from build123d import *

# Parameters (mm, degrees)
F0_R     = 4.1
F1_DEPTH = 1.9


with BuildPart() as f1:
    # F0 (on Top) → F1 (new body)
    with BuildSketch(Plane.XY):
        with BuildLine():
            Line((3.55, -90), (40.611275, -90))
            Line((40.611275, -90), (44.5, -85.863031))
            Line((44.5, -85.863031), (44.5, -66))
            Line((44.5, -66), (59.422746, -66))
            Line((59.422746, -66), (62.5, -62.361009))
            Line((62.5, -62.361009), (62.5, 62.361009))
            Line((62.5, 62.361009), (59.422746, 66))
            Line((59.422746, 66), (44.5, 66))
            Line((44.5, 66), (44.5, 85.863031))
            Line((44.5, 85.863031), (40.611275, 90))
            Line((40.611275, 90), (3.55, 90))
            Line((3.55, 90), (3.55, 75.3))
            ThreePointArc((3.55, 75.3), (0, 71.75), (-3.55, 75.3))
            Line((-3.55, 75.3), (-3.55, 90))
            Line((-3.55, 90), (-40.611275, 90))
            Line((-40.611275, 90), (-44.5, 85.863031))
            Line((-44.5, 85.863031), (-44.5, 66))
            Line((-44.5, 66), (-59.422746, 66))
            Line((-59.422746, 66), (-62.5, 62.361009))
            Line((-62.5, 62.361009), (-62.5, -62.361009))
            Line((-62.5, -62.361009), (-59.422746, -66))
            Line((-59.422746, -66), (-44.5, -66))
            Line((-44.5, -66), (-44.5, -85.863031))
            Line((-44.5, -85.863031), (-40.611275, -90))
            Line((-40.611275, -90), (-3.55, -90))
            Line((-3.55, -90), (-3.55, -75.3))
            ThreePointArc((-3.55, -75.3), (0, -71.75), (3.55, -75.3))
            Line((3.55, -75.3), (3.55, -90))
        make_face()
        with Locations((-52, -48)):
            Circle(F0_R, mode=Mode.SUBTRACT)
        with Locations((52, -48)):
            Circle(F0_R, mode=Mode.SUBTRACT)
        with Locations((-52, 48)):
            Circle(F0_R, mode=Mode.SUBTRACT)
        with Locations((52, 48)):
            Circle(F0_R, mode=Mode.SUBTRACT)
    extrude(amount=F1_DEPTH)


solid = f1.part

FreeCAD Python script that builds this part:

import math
import FreeCAD as App
import Part
import Sketcher
Q = App.Units.Quantity

doc = App.newDocument("Part")
body = doc.addObject("PartDesign::Body", "Body")

# Sketch on XY plane
sketch1 = body.newObject("Sketcher::SketchObject", "Sketch")
sketch1.AttachmentSupport = (doc.getObject("XY_Plane"), [""])
sketch1.MapMode = "FlatFace"
sketch1.addGeometry(Part.LineSegment(App.Vector(3.55, -90, 0), App.Vector(40.611275, -90, 0)), False)
sketch1.addGeometry(Part.LineSegment(App.Vector(40.611275, -90, 0), App.Vector(44.5, -85.863031, 0)), False)
sketch1.addGeometry(Part.LineSegment(App.Vector(44.5, -85.863031, 0), App.Vector(44.5, -66, 0)), False)
sketch1.addGeometry(Part.LineSegment(App.Vector(44.5, -66, 0), App.Vector(59.422746, -66, 0)), False)
sketch1.addGeometry(Part.LineSegment(App.Vector(59.422746, -66, 0), App.Vector(62.5, -62.361009, 0)), False)
sketch1.addGeometry(Part.LineSegment(App.Vector(62.5, -62.361009, 0), App.Vector(62.5, 62.361009, 0)), False)
sketch1.addGeometry(Part.LineSegment(App.Vector(62.5, 62.361009, 0), App.Vector(59.422746, 66, 0)), False)
sketch1.addGeometry(Part.LineSegment(App.Vector(59.422746, 66, 0), App.Vector(44.5, 66, 0)), False)
sketch1.addGeometry(Part.LineSegment(App.Vector(44.5, 66, 0), App.Vector(44.5, 85.863031, 0)), False)
sketch1.addGeometry(Part.LineSegment(App.Vector(44.5, 85.863031, 0), App.Vector(40.611275, 90, 0)), False)
sketch1.addGeometry(Part.LineSegment(App.Vector(40.611275, 90, 0), App.Vector(3.55, 90, 0)), False)
sketch1.addGeometry(Part.LineSegment(App.Vector(3.55, 90, 0), App.Vector(3.55, 75.3, 0)), False)
sketch1.addGeometry(Part.ArcOfCircle(Part.Circle(App.Vector(0, 75.3, 0), App.Vector(0, 0, 1), 3.55), math.radians(180), math.radians(360)), False)
sketch1.addGeometry(Part.LineSegment(App.Vector(-3.55, 75.3, 0), App.Vector(-3.55, 90, 0)), False)
sketch1.addGeometry(Part.LineSegment(App.Vector(-3.55, 90, 0), App.Vector(-40.611275, 90, 0)), False)
sketch1.addGeometry(Part.LineSegment(App.Vector(-40.611275, 90, 0), App.Vector(-44.5, 85.863031, 0)), False)
sketch1.addGeometry(Part.LineSegment(App.Vector(-44.5, 85.863031, 0), App.Vector(-44.5, 66, 0)), False)
sketch1.addGeometry(Part.LineSegment(App.Vector(-44.5, 66, 0), App.Vector(-59.422746, 66, 0)), False)
sketch1.addGeometry(Part.LineSegment(App.Vector(-59.422746, 66, 0), App.Vector(-62.5, 62.361009, 0)), False)
sketch1.addGeometry(Part.LineSegment(App.Vector(-62.5, 62.361009, 0), App.Vector(-62.5, -62.361009, 0)), False)
sketch1.addGeometry(Part.LineSegment(App.Vector(-62.5, -62.361009, 0), App.Vector(-59.422746, -66, 0)), False)
sketch1.addGeometry(Part.LineSegment(App.Vector(-59.422746, -66, 0), App.Vector(-44.5, -66, 0)), False)
sketch1.addGeometry(Part.LineSegment(App.Vector(-44.5, -66, 0), App.Vector(-44.5, -85.863031, 0)), False)
sketch1.addGeometry(Part.LineSegment(App.Vector(-44.5, -85.863031, 0), App.Vector(-40.611275, -90, 0)), False)
sketch1.addGeometry(Part.LineSegment(App.Vector(-40.611275, -90, 0), App.Vector(-3.55, -90, 0)), False)
sketch1.addGeometry(Part.LineSegment(App.Vector(-3.55, -90, 0), App.Vector(-3.55, -75.3, 0)), False)
sketch1.addGeometry(Part.ArcOfCircle(Part.Circle(App.Vector(0, -75.3, 0), App.Vector(0, 0, 1), 3.55), math.radians(0), math.radians(180)), False)
sketch1.addGeometry(Part.LineSegment(App.Vector(3.55, -75.3, 0), App.Vector(3.55, -90, 0)), False)
sketch1.addGeometry(Part.Circle(App.Vector(-52, -48, 0), App.Vector(0, 0, 1), 4.1), False)
sketch1.addGeometry(Part.Circle(App.Vector(52, -48, 0), App.Vector(0, 0, 1), 4.1), False)
sketch1.addGeometry(Part.Circle(App.Vector(-52, 48, 0), App.Vector(0, 0, 1), 4.1), False)
sketch1.addGeometry(Part.Circle(App.Vector(52, 48, 0), App.Vector(0, 0, 1), 4.1), False)
sketch1.addConstraint(Sketcher.Constraint("Coincident", 0, 2, 1, 1))
sketch1.addConstraint(Sketcher.Constraint("Coincident", 1, 2, 2, 1))
sketch1.addConstraint(Sketcher.Constraint("Coincident", 2, 2, 3, 1))
sketch1.addConstraint(Sketcher.Constraint("Coincident", 3, 2, 4, 1))
sketch1.addConstraint(Sketcher.Constraint("Coincident", 4, 2, 5, 1))
sketch1.addConstraint(Sketcher.Constraint("Coincident", 5, 2, 6, 1))
sketch1.addConstraint(Sketcher.Constraint("Coincident", 6, 2, 7, 1))
sketch1.addConstraint(Sketcher.Constraint("Coincident", 7, 2, 8, 1))
sketch1.addConstraint(Sketcher.Constraint("Coincident", 8, 2, 9, 1))
sketch1.addConstraint(Sketcher.Constraint("Coincident", 9, 2, 10, 1))
sketch1.addConstraint(Sketcher.Constraint("Coincident", 10, 2, 11, 1))
sketch1.addConstraint(Sketcher.Constraint("Tangent", 11, 2, 12, 2))
sketch1.addConstraint(Sketcher.Constraint("Tangent", 12, 1, 13, 1))
sketch1.addConstraint(Sketcher.Constraint("Coincident", 13, 2, 14, 1))
sketch1.addConstraint(Sketcher.Constraint("Coincident", 14, 2, 15, 1))
sketch1.addConstraint(Sketcher.Constraint("Coincident", 15, 2, 16, 1))
sketch1.addConstraint(Sketcher.Constraint("Coincident", 16, 2, 17, 1))
sketch1.addConstraint(Sketcher.Constraint("Coincident", 17, 2, 18, 1))
sketch1.addConstraint(Sketcher.Constraint("Coincident", 18, 2, 19, 1))
sketch1.addConstraint(Sketcher.Constraint("Coincident", 19, 2, 20, 1))
sketch1.addConstraint(Sketcher.Constraint("Coincident", 20, 2, 21, 1))
sketch1.addConstraint(Sketcher.Constraint("Coincident", 21, 2, 22, 1))
sketch1.addConstraint(Sketcher.Constraint("Coincident", 22, 2, 23, 1))
sketch1.addConstraint(Sketcher.Constraint("Coincident", 23, 2, 24, 1))
sketch1.addConstraint(Sketcher.Constraint("Coincident", 24, 2, 25, 1))
sketch1.addConstraint(Sketcher.Constraint("Tangent", 25, 2, 26, 2))
sketch1.addConstraint(Sketcher.Constraint("Tangent", 26, 1, 27, 1))
sketch1.addConstraint(Sketcher.Constraint("Coincident", 27, 2, 0, 1))
sketch1.addConstraint(Sketcher.Constraint("Horizontal", 0))
sketch1.addConstraint(Sketcher.Constraint("Vertical", 2))
sketch1.addConstraint(Sketcher.Constraint("Horizontal", 3))
sketch1.addConstraint(Sketcher.Constraint("Vertical", 5))
sketch1.addConstraint(Sketcher.Constraint("Horizontal", 7))
sketch1.addConstraint(Sketcher.Constraint("Vertical", 8))
sketch1.addConstraint(Sketcher.Constraint("Horizontal", 10))
sketch1.addConstraint(Sketcher.Constraint("Vertical", 11))
sketch1.addConstraint(Sketcher.Constraint("Vertical", 13))
sketch1.addConstraint(Sketcher.Constraint("Horizontal", 14))
sketch1.addConstraint(Sketcher.Constraint("Vertical", 16))
sketch1.addConstraint(Sketcher.Constraint("Horizontal", 17))
sketch1.addConstraint(Sketcher.Constraint("Vertical", 19))
sketch1.addConstraint(Sketcher.Constraint("Horizontal", 21))
sketch1.addConstraint(Sketcher.Constraint("Vertical", 22))
sketch1.addConstraint(Sketcher.Constraint("Horizontal", 24))
sketch1.addConstraint(Sketcher.Constraint("Vertical", 25))
sketch1.addConstraint(Sketcher.Constraint("Vertical", 27))
sketch1.addConstraint(Sketcher.Constraint("Equal", 12, 26))
sketch1.addConstraint(Sketcher.Constraint("Equal", 28, 29))
sketch1.addConstraint(Sketcher.Constraint("Equal", 29, 30))
sketch1.addConstraint(Sketcher.Constraint("Equal", 30, 31))
sketch1.addConstraint(Sketcher.Constraint("Symmetric", 12, 3, 26, 3, -1, 1))
sketch1.addConstraint(Sketcher.Constraint("Symmetric", 29, 3, 30, 3, -1, 1))
sketch1.addConstraint(Sketcher.Constraint("Symmetric", 28, 3, 31, 3, -1, 1))
sketch1.addConstraint(Sketcher.Constraint("Symmetric", 0, 2, 14, 2, -1, 1))
sketch1.addConstraint(Sketcher.Constraint("Symmetric", 1, 2, 15, 2, -1, 1))
sketch1.addConstraint(Sketcher.Constraint("Symmetric", 3, 2, 17, 2, -1, 1))
sketch1.addConstraint(Sketcher.Constraint("Symmetric", 4, 2, 18, 2, -1, 1))
sketch1.addConstraint(Sketcher.Constraint("Symmetric", 6, 2, 20, 2, -1, 1))
sketch1.addConstraint(Sketcher.Constraint("Symmetric", 8, 2, 22, 2, -1, 1))
sketch1.addConstraint(Sketcher.Constraint("Symmetric", 9, 2, 23, 2, -1, 1))
sketch1.addConstraint(Sketcher.Constraint("Symmetric", 28, 3, 29, 3, -2))
sketch1.addConstraint(Sketcher.Constraint("Symmetric", 10, 2, 13, 2, -2))
sketch1.addConstraint(Sketcher.Constraint("Symmetric", 8, 2, 15, 2, -2))
sketch1.addConstraint(Sketcher.Constraint("Symmetric", 6, 2, 17, 2, -2))
sketch1.addConstraint(Sketcher.Constraint("Parallel", 6, 20))
sketch1.addConstraint(Sketcher.Constraint("Horizontal", 5, 2, 18, 2))
sketch1.addConstraint(Sketcher.Constraint("Vertical", 0, 2, 9, 2))
sketch1.addConstraint(Sketcher.Constraint("Diameter", 28, Q("8.2 mm")))
sketch1.addConstraint(Sketcher.Constraint("Radius", 12, Q("3.55 mm")))
sketch1.addConstraint(Sketcher.Constraint("DistanceY", 11, 2, 11, 1, Q("14.7 mm")))
sketch1.addConstraint(Sketcher.Constraint("DistanceX", 28, 3, -1, 1, Q("52 mm")))
sketch1.addConstraint(Sketcher.Constraint("DistanceY", 28, 3, -1, 1, Q("48 mm")))
sketch1.addConstraint(Sketcher.Constraint("DistanceY", 0, 2, -1, 1, Q("90 mm")))
sketch1.addConstraint(Sketcher.Constraint("DistanceY", 2, 2, -1, 1, Q("66 mm")))
sketch1.addConstraint(Sketcher.Constraint("DistanceX", 2, 2, 4, 2, Q("18 mm")))
sketch1.addConstraint(Sketcher.Constraint("DistanceX", 19, 2, 2, 2, Q("107 mm")))
sketch1.addConstraint(Sketcher.Constraint("DistanceY", 2, 1, 2, 2, Q("19.863031 mm")))
sketch1.addConstraint(Sketcher.Constraint("DistanceY", 5, 1, 5, 2, Q("124.722018 mm")))
sketch1.addConstraint(Sketcher.Constraint("DistanceX", 0, 1, 0, 2, Q("37.061275 mm")))
sketch1.addConstraint(Sketcher.Constraint("DistanceX", 3, 1, 3, 2, Q("14.922746 mm")))
pad1 = body.newObject("PartDesign::Pad", "Pad")
pad1.Profile = sketch1
pad1.Length = 1.9

doc.recompute()
